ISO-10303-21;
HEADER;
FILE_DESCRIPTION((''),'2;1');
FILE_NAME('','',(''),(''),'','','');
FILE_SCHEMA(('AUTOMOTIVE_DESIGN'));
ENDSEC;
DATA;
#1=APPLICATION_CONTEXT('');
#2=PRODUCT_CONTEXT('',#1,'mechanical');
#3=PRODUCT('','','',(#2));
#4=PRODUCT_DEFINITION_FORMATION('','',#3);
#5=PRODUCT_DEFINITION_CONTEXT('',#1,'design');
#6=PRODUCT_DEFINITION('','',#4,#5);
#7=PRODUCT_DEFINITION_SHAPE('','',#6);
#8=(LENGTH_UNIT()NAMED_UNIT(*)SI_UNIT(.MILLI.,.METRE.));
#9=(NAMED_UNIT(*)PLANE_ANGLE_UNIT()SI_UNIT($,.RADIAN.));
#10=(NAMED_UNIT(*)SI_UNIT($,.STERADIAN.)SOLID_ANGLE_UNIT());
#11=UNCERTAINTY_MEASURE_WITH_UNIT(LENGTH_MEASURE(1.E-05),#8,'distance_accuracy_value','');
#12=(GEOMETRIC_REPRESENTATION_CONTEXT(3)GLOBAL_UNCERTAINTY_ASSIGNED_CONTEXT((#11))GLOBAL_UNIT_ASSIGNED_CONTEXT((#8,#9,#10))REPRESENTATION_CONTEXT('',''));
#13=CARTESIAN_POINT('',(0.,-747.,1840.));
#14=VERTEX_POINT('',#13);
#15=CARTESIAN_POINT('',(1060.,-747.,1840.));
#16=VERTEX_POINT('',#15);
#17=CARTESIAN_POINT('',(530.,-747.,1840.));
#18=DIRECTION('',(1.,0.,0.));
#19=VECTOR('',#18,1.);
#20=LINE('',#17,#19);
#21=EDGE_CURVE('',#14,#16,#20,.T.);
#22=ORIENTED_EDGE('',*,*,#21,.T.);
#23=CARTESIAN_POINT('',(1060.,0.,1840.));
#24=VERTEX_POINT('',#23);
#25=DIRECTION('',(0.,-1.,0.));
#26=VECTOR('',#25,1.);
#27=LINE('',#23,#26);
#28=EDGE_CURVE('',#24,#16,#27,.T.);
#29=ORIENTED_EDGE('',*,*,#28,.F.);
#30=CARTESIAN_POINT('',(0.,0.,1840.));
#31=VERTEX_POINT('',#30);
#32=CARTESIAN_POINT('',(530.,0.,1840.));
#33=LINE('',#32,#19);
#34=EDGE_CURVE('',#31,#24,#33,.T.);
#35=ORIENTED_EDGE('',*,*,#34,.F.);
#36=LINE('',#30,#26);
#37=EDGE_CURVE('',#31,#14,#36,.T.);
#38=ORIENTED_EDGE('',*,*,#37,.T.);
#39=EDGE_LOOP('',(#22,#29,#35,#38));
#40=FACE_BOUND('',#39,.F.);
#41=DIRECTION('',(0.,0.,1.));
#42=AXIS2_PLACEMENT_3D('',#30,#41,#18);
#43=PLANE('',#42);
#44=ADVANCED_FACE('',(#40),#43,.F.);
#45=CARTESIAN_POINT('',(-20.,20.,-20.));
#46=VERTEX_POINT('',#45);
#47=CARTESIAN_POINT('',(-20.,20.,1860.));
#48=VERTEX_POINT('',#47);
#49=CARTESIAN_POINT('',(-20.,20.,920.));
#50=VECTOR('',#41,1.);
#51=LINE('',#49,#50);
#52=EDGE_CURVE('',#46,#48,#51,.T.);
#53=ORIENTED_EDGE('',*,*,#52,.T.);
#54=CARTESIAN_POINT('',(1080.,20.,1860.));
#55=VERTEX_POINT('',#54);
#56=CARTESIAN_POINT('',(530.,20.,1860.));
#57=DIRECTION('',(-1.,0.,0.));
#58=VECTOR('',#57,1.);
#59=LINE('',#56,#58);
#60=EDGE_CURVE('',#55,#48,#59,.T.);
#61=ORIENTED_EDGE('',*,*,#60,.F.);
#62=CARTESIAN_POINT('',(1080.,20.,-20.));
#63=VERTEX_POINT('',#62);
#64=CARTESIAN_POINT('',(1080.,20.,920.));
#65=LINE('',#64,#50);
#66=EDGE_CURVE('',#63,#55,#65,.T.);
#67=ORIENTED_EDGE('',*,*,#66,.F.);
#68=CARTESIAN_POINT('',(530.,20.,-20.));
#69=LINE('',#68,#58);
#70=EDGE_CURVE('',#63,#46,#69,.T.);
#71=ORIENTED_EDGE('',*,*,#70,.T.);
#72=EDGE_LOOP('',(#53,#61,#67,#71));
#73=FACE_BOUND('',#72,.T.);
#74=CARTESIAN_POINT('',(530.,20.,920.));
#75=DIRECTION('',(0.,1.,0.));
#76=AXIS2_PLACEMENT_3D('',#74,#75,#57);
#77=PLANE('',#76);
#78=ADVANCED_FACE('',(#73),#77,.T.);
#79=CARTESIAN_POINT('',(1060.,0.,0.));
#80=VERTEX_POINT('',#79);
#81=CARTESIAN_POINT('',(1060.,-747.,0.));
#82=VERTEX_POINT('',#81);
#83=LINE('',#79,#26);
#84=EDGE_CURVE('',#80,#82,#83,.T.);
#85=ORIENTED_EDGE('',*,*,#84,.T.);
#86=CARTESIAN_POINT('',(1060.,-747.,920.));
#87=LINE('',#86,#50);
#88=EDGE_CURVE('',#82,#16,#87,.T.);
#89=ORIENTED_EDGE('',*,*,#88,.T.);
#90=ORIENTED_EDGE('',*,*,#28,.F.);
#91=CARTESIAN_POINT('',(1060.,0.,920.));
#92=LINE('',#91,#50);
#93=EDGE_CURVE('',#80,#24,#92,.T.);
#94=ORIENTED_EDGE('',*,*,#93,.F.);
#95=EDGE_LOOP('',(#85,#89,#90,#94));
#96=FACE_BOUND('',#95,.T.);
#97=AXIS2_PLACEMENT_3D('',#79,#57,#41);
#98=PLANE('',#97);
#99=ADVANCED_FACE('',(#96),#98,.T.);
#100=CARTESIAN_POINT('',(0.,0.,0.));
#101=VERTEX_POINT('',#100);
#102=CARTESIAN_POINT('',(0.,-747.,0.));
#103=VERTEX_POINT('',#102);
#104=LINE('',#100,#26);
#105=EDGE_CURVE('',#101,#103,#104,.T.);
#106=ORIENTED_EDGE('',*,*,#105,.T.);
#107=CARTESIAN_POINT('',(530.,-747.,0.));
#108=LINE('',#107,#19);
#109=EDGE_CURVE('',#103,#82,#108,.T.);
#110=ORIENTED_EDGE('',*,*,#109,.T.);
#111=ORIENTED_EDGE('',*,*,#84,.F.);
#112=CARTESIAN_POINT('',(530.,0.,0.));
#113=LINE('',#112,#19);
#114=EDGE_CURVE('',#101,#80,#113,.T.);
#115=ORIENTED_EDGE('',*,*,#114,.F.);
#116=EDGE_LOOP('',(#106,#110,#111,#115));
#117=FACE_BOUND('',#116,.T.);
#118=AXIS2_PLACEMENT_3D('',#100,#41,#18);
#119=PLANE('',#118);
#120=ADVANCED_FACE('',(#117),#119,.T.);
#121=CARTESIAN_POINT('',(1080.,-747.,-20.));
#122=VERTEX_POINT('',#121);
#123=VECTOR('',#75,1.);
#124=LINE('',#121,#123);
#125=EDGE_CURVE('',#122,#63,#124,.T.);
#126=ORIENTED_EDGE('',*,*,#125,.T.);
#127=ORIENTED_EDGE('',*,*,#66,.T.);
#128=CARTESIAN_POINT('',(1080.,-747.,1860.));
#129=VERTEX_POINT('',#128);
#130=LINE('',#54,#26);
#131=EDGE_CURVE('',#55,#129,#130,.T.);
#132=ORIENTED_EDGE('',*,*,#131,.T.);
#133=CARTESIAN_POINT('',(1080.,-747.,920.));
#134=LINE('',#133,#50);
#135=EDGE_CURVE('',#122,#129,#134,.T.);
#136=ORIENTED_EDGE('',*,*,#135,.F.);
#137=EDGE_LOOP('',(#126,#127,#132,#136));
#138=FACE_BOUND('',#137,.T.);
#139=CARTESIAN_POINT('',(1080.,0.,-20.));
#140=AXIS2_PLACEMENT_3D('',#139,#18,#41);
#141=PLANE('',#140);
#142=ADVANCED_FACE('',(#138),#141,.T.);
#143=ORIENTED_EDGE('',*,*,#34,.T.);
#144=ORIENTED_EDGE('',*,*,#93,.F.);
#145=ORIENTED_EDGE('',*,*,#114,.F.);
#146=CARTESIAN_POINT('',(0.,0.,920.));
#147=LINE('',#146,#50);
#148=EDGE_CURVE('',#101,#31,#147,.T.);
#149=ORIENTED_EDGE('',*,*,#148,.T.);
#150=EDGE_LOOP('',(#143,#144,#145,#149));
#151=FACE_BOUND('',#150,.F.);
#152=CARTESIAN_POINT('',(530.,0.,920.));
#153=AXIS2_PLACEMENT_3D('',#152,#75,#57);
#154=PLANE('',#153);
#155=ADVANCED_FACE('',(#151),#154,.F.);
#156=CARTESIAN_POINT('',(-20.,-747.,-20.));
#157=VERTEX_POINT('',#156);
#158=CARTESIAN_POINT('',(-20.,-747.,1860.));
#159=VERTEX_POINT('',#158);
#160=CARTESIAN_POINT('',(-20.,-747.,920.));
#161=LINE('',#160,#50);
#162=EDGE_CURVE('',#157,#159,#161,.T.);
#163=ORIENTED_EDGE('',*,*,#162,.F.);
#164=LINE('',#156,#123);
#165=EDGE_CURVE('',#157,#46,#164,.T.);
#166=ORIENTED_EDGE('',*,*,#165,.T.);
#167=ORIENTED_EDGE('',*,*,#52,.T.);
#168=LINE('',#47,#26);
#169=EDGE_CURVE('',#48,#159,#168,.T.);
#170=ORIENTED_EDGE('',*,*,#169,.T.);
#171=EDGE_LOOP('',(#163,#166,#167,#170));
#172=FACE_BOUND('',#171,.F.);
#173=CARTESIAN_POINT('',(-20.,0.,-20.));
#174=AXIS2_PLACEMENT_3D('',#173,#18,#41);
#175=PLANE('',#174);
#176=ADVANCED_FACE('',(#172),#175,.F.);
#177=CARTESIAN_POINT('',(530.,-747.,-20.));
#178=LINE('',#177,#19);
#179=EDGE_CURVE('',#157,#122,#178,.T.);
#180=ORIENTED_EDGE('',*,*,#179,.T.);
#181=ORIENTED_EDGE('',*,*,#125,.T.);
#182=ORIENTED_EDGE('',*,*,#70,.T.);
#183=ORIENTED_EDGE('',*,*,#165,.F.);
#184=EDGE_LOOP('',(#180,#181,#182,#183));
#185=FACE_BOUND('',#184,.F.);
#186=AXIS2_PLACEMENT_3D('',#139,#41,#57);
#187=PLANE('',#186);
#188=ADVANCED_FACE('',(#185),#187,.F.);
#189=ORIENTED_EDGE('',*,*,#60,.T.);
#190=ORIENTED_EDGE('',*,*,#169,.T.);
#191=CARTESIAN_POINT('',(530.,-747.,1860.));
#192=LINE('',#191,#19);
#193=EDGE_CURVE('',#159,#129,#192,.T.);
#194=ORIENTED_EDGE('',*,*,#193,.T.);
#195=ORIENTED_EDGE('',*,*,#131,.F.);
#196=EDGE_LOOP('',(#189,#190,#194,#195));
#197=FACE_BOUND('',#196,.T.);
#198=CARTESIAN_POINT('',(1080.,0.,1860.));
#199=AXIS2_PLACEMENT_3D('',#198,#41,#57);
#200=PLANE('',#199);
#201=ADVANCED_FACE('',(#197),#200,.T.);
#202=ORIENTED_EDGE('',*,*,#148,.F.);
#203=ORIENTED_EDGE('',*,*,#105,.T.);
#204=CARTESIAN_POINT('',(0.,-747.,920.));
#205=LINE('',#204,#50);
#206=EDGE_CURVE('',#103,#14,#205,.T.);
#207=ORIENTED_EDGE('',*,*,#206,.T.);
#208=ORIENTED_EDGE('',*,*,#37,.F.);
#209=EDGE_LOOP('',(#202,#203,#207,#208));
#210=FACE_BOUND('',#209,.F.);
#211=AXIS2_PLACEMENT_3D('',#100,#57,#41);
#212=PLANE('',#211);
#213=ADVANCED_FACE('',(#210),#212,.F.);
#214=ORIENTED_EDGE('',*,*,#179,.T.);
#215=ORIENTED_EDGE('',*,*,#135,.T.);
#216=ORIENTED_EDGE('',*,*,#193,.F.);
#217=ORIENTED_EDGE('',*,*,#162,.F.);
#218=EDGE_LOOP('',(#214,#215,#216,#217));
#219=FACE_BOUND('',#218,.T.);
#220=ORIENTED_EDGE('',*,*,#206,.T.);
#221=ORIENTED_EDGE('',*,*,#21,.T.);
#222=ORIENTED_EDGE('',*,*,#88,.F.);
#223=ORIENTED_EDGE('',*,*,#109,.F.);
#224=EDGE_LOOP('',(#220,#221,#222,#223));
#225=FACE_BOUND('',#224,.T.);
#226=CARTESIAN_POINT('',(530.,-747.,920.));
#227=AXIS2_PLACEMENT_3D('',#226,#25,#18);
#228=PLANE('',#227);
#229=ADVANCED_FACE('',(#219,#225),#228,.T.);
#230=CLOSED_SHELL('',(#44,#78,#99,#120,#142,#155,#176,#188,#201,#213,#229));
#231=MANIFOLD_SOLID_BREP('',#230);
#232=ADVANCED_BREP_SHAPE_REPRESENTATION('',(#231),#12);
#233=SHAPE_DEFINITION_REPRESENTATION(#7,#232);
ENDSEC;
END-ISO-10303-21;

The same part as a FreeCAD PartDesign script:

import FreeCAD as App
import Part
import Sketcher

V = App.Vector
Q = App.Units.Quantity

doc = App.newDocument("Part")
body = doc.addObject("PartDesign::Body", "Body")

sketch1 = doc.addObject("Sketcher::SketchObject", "Sketch")
body.addObject(sketch1)
sketch1.AttachmentSupport = (doc.XZ_Plane, [""])
sketch1.MapMode = "FlatFace"
sketch1.addGeometry(Part.LineSegment(V(-20, 1860, 0), V(-20, -20, 0)), False)
sketch1.addGeometry(Part.LineSegment(V(-20, -20, 0), V(1080, -20, 0)), False)
sketch1.addGeometry(Part.LineSegment(V(1080, -20, 0), V(1080, 1860, 0)), False)
sketch1.addGeometry(Part.LineSegment(V(1080, 1860, 0), V(-20, 1860, 0)), False)
sketch1.addGeometry(Part.LineSegment(V(1060, 0, 0), V(0, 0, 0)), False)
sketch1.addGeometry(Part.LineSegment(V(0, 0, 0), V(0, 1840, 0)), False)
sketch1.addGeometry(Part.LineSegment(V(0, 1840, 0), V(1060, 1840, 0)), False)
sketch1.addGeometry(Part.LineSegment(V(1060, 1840, 0), V(1060, 0, 0)), False)
sketch1.addConstraint(Sketcher.Constraint("Coincident", 0, 2, 1, 1))
sketch1.addConstraint(Sketcher.Constraint("Coincident", 1, 2, 2, 1))
sketch1.addConstraint(Sketcher.Constraint("Coincident", 2, 2, 3, 1))
sketch1.addConstraint(Sketcher.Constraint("Coincident", 3, 2, 0, 1))
sketch1.addConstraint(Sketcher.Constraint("Coincident", 4, 2, 5, 1))
sketch1.addConstraint(Sketcher.Constraint("Coincident", 5, 2, 6, 1))
sketch1.addConstraint(Sketcher.Constraint("Coincident", 6, 2, 7, 1))
sketch1.addConstraint(Sketcher.Constraint("Coincident", 7, 2, 4, 1))
sketch1.addConstraint(Sketcher.Constraint("Vertical", 0))
sketch1.addConstraint(Sketcher.Constraint("Horizontal", 1))
sketch1.addConstraint(Sketcher.Constraint("Vertical", 2))
sketch1.addConstraint(Sketcher.Constraint("Horizontal", 3))
sketch1.addConstraint(Sketcher.Constraint("Horizontal", 4))
sketch1.addConstraint(Sketcher.Constraint("Vertical", 5))
sketch1.addConstraint(Sketcher.Constraint("Horizontal", 6))
sketch1.addConstraint(Sketcher.Constraint("Vertical", 7))
sketch1.addConstraint(Sketcher.Constraint("Coincident", 4, 2, -1, 1))
sketch1.addConstraint(Sketcher.Constraint("DistanceX", 1, 1, 1, 2, Q("1100 mm")))
sketch1.addConstraint(Sketcher.Constraint("DistanceX", 4, 2, 4, 1, Q("1060 mm")))
sketch1.addConstraint(Sketcher.Constraint("DistanceY", 0, 2, 0, 1, Q("1880 mm")))
sketch1.addConstraint(Sketcher.Constraint("DistanceY", 5, 1, 5, 2, Q("1840 mm")))
sketch1.addConstraint(Sketcher.Constraint("DistanceX", 0, 2, -1, 1, Q("20 mm")))
sketch1.addConstraint(Sketcher.Constraint("DistanceY", 0, 2, -1, 1, Q("20 mm")))
pad1 = doc.addObject("PartDesign::Pad", "Pad")
body.addObject(pad1)
pad1.Profile = sketch1
pad1.Length = 747

sketch2 = doc.addObject("Sketcher::SketchObject", "Sketch001")
body.addObject(sketch2)
sketch2.AttachmentSupport = (doc.XZ_Plane, [""])
sketch2.MapMode = "FlatFace"
sketch2.addGeometry(Part.LineSegment(V(1080, 1860, 0), V(1080, -20, 0)), False)
sketch2.addGeometry(Part.LineSegment(V(1080, -20, 0), V(-20, -20, 0)), False)
sketch2.addGeometry(Part.LineSegment(V(-20, -20, 0), V(-20, 1860, 0)), False)
sketch2.addGeometry(Part.LineSegment(V(-20, 1860, 0), V(1080, 1860, 0)), False)
sketch2.addConstraint(Sketcher.Constraint("Coincident", 0, 2, 1, 1))
sketch2.addConstraint(Sketcher.Constraint("Coincident", 1, 2, 2, 1))
sketch2.addConstraint(Sketcher.Constraint("Coincident", 2, 2, 3, 1))
sketch2.addConstraint(Sketcher.Constraint("Coincident", 3, 2, 0, 1))
sketch2.addConstraint(Sketcher.Constraint("Vertical", 0))
sketch2.addConstraint(Sketcher.Constraint("Horizontal", 1))
sketch2.addConstraint(Sketcher.Constraint("Vertical", 2))
sketch2.addConstraint(Sketcher.Constraint("Horizontal", 3))
sketch2.addConstraint(Sketcher.Constraint("DistanceX", 1, 2, 1, 1, Q("1100 mm")))
sketch2.addConstraint(Sketcher.Constraint("DistanceY", 0, 2, 0, 1, Q("1880 mm")))
sketch2.addConstraint(Sketcher.Constraint("DistanceX", -1, 1, 0, 2, Q("1080 mm")))
sketch2.addConstraint(Sketcher.Constraint("DistanceY", 0, 2, -1, 1, Q("20 mm")))
pad2 = doc.addObject("PartDesign::Pad", "Pad001")
body.addObject(pad2)
pad2.Profile = sketch2
pad2.Length = 20
pad2.Reversed = True

doc.recompute()
